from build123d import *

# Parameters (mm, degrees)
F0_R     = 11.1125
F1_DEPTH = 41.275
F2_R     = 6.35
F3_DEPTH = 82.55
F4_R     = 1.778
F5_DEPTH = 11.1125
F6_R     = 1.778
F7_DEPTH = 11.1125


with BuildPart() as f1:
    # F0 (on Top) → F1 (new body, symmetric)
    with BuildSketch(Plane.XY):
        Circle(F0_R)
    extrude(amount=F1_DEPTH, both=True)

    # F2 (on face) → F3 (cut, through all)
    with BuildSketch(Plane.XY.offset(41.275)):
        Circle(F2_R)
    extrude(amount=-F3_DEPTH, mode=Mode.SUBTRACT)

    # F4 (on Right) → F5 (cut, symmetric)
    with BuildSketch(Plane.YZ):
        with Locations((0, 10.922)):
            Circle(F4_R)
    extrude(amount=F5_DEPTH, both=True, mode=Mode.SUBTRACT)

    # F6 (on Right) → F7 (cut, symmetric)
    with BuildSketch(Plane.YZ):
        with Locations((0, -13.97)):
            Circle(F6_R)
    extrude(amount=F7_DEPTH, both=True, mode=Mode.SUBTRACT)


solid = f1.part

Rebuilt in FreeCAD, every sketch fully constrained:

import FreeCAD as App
import Part
import Sketcher
from FreeCAD import Vector
Q = App.Units.Quantity

doc = App.newDocument("Part")
params = doc.addObject("Spreadsheet::Sheet", "Params")
for row, (alias, value) in enumerate([
    ("sketch1_diameter", "0.875 in"),
    ("pad1_length", "3.25 in"),
    ("sketch2_diameter", "0.5 in"),
    ("sketch3_diameter", "0.14 in"),
    ("pocket2_length", "0.875 in"),
    ("sketch4_diameter", "0.14 in"),
    ("pocket3_length", "0.875 in"),
], start=1):
    params.set(f"A{row}", alias)
    params.set(f"B{row}", "=" + value)
    params.setAlias(f"B{row}", alias)

body = doc.addObject("PartDesign::Body", "Body")

# Sketch on XY plane
sketch1 = body.newObject("Sketcher::SketchObject", "Sketch")
sketch1.AttachmentSupport = (doc.getObject("XY_Plane"), [""])
sketch1.MapMode = "FlatFace"
sketch1.addGeometry(Part.Circle(Vector(0, 0, 0), Vector(0, 0, 1), 11.1125), False)
sketch1.addConstraint(Sketcher.Constraint("Coincident", 0, 3, -1, 1))
sketch1.addConstraint(Sketcher.Constraint("Diameter", 0, Q("0.875 in")))
sketch1.setExpression("Constraints[1]", "Params.sketch1_diameter")
pad1 = body.newObject("PartDesign::Pad", "Pad")
pad1.Profile = sketch1
pad1.setExpression("Length", "Params.pad1_length")
pad1.Midplane = True

# Sketch on XY plane
sketch2 = body.newObject("Sketcher::SketchObject", "Sketch001")
sketch2.AttachmentSupport = (doc.getObject("XY_Plane"), [""])
sketch2.MapMode = "FlatFace"
sketch2.AttachmentOffset = App.Placement(Vector(0, 0, 1.625 * 25.4), App.Rotation())
sketch2.addGeometry(Part.Circle(Vector(0, 0, 0), Vector(0, 0, 1), 6.35), False)
sketch2.addConstraint(Sketcher.Constraint("Coincident", 0, 3, -1, 1))
sketch2.addConstraint(Sketcher.Constraint("Diameter", 0, Q("0.5 in")))
sketch2.setExpression("Constraints[1]", "Params.sketch2_diameter")
pocket1 = body.newObject("PartDesign::Pocket", "Pocket")
pocket1.Profile = sketch2
pocket1.Type = "ThroughAll"

# Sketch on YZ plane
sketch3 = body.newObject("Sketcher::SketchObject", "Sketch002")
sketch3.AttachmentSupport = (doc.getObject("YZ_Plane"), [""])
sketch3.MapMode = "FlatFace"
sketch3.addGeometry(Part.Circle(Vector(0, 10.922, 0), Vector(0, 0, 1), 1.778), False)
sketch3.addConstraint(Sketcher.Constraint("PointOnObject", 0, 3, -2))
sketch3.addConstraint(Sketcher.Constraint("Diameter", 0, Q("0.14 in")))
sketch3.addConstraint(Sketcher.Constraint("DistanceY", -1, 1, 0, 3, Q("0.43 in")))
sketch3.setExpression("Constraints[1]", "Params.sketch3_diameter")
pocket2 = body.newObject("PartDesign::Pocket", "Pocket001")
pocket2.Profile = sketch3
pocket2.setExpression("Length", "Params.pocket2_length")
pocket2.Midplane = True

# Sketch on YZ plane
sketch4 = body.newObject("Sketcher::SketchObject", "Sketch003")
sketch4.AttachmentSupport = (doc.getObject("YZ_Plane"), [""])
sketch4.MapMode = "FlatFace"
sketch4.addGeometry(Part.Circle(Vector(0, -13.97, 0), Vector(0, 0, 1), 1.778), False)
sketch4.addConstraint(Sketcher.Constraint("PointOnObject", 0, 3, -2))
sketch4.addConstraint(Sketcher.Constraint("Diameter", 0, Q("0.14 in")))
sketch4.addConstraint(Sketcher.Constraint("DistanceY", 0, 3, -1, 1, Q("0.55 in")))
sketch4.setExpression("Constraints[1]", "Params.sketch4_diameter")
pocket3 = body.newObject("PartDesign::Pocket", "Pocket002")
pocket3.Profile = sketch4
pocket3.setExpression("Length", "Params.pocket3_length")
pocket3.Midplane = True

doc.recompute()
